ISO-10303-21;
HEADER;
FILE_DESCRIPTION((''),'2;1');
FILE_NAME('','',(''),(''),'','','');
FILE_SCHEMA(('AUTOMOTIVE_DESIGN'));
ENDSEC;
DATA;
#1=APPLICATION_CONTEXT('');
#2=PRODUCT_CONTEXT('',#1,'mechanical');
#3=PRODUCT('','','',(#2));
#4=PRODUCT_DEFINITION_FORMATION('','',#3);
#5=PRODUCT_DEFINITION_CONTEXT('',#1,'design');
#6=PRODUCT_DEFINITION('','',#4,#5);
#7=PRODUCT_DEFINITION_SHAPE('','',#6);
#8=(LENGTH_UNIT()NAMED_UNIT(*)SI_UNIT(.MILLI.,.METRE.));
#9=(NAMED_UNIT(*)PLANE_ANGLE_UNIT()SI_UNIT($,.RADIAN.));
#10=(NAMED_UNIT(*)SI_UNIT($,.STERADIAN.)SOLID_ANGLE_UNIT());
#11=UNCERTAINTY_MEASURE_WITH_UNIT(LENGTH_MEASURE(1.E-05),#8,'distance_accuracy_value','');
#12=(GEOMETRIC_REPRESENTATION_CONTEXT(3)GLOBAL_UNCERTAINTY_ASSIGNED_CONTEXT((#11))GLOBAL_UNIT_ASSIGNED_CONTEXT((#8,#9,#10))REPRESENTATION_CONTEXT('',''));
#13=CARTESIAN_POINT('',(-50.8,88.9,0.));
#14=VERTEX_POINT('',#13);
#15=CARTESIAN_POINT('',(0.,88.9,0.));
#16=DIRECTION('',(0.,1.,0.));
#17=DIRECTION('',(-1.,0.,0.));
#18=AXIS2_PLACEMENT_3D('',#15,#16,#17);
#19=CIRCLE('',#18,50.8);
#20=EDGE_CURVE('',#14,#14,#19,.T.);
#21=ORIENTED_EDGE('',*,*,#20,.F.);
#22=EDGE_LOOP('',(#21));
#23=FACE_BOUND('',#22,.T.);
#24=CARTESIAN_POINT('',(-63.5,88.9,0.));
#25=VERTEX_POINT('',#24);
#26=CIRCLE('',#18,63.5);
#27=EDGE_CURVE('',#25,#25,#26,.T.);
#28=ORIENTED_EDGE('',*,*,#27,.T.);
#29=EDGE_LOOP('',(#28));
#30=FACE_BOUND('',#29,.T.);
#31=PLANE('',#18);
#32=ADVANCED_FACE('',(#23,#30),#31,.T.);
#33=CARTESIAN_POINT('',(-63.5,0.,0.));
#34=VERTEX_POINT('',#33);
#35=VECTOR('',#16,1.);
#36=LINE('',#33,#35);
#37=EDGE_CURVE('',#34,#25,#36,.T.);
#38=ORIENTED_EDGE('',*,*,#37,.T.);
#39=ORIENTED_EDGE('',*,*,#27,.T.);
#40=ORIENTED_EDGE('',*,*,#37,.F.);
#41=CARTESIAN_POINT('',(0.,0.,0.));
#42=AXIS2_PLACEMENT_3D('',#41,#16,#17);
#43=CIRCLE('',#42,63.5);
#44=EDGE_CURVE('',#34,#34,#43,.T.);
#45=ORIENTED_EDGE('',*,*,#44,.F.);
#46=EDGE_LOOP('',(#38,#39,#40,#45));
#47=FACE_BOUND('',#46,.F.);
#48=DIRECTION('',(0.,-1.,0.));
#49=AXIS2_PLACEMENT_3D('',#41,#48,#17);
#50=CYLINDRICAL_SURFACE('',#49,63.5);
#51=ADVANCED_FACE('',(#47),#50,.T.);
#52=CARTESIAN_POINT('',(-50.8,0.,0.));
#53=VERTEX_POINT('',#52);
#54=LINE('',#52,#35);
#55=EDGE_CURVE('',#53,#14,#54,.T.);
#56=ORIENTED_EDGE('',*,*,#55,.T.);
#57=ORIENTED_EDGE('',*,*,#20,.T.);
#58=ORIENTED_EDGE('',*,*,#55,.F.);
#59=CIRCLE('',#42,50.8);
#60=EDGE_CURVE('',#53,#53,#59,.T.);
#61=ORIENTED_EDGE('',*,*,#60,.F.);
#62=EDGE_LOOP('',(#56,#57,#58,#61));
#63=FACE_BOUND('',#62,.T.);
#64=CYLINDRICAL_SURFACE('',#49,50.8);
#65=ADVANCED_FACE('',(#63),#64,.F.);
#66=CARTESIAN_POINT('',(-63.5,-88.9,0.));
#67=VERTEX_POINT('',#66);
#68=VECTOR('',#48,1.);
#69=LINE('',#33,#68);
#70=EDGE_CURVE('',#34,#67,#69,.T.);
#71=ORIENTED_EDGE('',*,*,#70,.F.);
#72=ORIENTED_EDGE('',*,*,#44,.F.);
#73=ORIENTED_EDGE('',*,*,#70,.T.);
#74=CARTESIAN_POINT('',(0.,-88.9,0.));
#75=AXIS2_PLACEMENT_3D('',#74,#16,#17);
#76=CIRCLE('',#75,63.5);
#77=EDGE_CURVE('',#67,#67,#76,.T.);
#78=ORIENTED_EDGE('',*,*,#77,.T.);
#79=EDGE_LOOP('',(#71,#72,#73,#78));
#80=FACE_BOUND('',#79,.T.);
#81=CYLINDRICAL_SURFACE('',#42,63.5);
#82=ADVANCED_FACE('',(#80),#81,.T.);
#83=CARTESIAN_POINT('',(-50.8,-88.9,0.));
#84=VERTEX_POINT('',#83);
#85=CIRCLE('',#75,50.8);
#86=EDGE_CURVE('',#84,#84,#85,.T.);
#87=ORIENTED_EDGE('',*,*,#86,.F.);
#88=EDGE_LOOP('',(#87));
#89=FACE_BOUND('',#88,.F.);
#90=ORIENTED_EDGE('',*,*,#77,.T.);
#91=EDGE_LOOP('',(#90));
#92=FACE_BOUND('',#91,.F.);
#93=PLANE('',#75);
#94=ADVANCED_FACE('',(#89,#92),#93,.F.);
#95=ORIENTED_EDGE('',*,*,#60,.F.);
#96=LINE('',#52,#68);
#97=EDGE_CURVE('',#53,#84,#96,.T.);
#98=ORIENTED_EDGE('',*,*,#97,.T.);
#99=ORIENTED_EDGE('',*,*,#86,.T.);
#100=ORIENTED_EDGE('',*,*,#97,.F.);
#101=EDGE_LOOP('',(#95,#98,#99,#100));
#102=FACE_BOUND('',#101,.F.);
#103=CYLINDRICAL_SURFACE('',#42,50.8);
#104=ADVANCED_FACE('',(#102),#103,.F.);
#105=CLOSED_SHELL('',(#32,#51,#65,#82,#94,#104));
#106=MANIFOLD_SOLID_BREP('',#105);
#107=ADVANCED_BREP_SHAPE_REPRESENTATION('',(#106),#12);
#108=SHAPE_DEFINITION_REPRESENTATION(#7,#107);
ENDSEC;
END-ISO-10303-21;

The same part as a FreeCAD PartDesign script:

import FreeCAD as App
import Part
import Sketcher

V = App.Vector
Q = App.Units.Quantity

doc = App.newDocument("Part")
body = doc.addObject("PartDesign::Body", "Body")

# Sketch on XZ plane
sketch1 = doc.addObject("Sketcher::SketchObject", "Sketch")
body.addObject(sketch1)
sketch1.AttachmentSupport = (doc.XZ_Plane, [""])
sketch1.MapMode = "FlatFace"
sketch1.addGeometry([
    Part.Circle(V(0, 0, 0), V(0, 0, 1), 63.5),
    Part.Circle(V(0, 0, 0), V(0, 0, 1), 50.8),
], False)
sketch1.addConstraint([
    Sketcher.Constraint("Coincident", 0, 3, -1, 1),
    Sketcher.Constraint("Coincident", 1, 3, -1, 1),
    Sketcher.Constraint("Diameter", 1, Q("4 in")),
    Sketcher.Constraint("Diameter", 0, Q("5 in")),
])
pad1 = doc.addObject("PartDesign::Pad", "Pad")
body.addObject(pad1)
pad1.Profile = sketch1
pad1.Length = Q("7 in")
pad1.Midplane = True

doc.recompute()
